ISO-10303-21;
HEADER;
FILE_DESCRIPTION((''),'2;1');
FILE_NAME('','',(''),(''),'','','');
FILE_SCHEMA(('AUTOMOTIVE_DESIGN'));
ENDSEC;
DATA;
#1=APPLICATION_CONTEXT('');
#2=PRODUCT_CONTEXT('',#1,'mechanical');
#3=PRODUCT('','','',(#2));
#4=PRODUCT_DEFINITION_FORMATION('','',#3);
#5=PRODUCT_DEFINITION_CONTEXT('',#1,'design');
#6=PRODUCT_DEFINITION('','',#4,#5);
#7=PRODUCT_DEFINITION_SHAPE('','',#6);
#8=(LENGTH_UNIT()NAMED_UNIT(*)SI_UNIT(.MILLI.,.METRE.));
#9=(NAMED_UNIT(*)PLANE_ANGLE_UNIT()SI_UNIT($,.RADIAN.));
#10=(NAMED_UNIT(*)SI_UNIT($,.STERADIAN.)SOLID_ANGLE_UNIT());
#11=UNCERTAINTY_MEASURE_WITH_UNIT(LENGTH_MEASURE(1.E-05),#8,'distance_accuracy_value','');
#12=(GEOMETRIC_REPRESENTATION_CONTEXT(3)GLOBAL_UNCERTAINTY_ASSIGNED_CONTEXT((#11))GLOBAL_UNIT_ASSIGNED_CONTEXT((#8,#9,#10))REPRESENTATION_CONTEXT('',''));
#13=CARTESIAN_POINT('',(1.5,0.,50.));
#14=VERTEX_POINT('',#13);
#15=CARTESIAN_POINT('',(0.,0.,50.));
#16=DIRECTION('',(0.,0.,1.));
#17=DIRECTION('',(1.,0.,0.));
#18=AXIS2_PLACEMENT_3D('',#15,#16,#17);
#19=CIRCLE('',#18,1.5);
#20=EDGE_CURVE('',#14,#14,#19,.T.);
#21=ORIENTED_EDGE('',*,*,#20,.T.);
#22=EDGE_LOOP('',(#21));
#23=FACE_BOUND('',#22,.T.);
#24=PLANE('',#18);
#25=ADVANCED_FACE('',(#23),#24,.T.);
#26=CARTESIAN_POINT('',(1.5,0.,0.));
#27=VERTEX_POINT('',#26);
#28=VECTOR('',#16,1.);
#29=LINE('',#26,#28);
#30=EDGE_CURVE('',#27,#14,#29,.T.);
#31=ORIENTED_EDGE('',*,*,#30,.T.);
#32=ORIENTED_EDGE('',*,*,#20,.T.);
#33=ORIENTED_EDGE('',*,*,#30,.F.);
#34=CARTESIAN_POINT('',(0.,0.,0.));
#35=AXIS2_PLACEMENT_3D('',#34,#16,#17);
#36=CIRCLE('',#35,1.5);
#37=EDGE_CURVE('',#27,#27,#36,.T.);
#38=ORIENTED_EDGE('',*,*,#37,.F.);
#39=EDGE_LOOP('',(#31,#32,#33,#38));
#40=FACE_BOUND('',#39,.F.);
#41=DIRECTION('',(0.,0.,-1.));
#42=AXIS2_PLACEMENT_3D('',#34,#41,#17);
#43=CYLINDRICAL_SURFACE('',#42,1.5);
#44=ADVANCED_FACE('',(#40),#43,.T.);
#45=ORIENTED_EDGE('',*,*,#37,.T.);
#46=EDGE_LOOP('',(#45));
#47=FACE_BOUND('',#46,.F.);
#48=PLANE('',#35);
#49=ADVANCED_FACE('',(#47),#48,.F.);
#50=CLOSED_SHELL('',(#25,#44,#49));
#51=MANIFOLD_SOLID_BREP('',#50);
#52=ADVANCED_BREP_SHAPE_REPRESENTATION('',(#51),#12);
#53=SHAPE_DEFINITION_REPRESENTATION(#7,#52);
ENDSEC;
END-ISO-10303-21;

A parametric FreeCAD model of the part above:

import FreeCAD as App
import Part
import Sketcher
Q = App.Units.Quantity

doc = App.newDocument("Part")
body = doc.addObject("PartDesign::Body", "Body")

sketch1 = body.newObject("Sketcher::SketchObject", "Sketch")
sketch1.AttachmentSupport = (doc.getObject("XY_Plane"), [""])
sketch1.MapMode = "FlatFace"
sketch1.addGeometry(Part.Circle(App.Vector(0, 0, 0), App.Vector(0, 0, 1), 1.5), False)
sketch1.addConstraint([
    Sketcher.Constraint("Coincident", 0, 3, -1, 1),
    Sketcher.Constraint("Diameter", 0, Q("3 mm")),
])
pad1 = body.newObject("PartDesign::Pad", "Pad")
pad1.Profile = sketch1
pad1.Length = 50

doc.recompute()
